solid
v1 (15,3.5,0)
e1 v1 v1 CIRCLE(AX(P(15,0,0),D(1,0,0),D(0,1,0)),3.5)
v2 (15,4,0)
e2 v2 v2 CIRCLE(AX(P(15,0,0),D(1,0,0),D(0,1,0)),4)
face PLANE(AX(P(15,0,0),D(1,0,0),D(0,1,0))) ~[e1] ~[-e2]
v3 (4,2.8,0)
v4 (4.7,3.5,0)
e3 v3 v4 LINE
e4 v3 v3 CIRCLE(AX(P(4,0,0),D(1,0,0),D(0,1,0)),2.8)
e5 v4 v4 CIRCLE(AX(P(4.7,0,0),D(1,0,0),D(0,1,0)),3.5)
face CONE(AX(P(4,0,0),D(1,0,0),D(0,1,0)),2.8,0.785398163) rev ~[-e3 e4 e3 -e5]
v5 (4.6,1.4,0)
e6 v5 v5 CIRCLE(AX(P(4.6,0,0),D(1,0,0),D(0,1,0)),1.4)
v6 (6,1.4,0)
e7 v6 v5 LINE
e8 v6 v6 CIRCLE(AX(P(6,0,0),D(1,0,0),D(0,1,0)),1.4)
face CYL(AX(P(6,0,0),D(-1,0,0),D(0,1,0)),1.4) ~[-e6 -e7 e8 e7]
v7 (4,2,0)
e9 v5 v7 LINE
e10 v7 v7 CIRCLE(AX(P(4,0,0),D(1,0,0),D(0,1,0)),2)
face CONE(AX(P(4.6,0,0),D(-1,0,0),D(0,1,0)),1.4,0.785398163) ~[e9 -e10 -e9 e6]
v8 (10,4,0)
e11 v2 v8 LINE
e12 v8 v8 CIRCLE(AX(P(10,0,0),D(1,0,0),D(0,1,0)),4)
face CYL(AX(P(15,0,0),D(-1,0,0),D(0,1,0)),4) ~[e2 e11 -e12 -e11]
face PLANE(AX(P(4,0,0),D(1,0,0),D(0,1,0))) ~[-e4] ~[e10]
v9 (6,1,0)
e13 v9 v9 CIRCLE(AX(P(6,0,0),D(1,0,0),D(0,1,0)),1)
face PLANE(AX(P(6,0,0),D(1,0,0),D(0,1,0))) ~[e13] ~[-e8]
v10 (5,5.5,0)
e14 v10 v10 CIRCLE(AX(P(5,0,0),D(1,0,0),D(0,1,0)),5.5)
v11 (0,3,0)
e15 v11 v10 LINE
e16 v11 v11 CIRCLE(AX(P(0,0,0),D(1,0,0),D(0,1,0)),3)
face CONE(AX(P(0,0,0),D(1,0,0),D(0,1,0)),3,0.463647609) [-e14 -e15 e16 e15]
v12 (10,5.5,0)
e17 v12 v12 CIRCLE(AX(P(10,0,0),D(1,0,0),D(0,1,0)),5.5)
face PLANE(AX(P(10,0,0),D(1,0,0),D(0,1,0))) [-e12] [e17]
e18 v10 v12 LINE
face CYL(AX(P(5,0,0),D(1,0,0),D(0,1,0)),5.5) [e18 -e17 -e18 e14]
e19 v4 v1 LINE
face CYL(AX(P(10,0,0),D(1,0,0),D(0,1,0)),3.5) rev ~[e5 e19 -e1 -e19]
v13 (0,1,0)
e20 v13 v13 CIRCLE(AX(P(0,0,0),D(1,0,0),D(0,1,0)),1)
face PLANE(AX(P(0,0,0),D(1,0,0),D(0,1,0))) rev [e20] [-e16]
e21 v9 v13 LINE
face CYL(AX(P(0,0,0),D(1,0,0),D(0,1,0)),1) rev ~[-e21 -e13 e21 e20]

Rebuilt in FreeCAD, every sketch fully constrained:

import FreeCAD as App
import Part
import Sketcher
Q = App.Units.Quantity


def edges_at(feature, points):
    """Names of the edges that pass closest to the given points."""
    edges = feature.Shape.Edges
    near = lambda p: min(range(len(edges)), key=lambda i: edges[i].distToShape(Part.Vertex(*p))[0])
    return sorted({f"Edge{near(p) + 1}" for p in points})

doc = App.newDocument("Part")
body = doc.addObject("PartDesign::Body", "Body")

# Sketch on XY plane
sketch1 = doc.addObject("Sketcher::SketchObject", "Sketch")
body.addObject(sketch1)
sketch1.AttachmentSupport = (doc.XY_Plane, [""])
sketch1.MapMode = "FlatFace"
sketch1.addGeometry([
    Part.LineSegment(App.Vector(0, 3, 0), App.Vector(0, 1, 0)),  # 0
    Part.LineSegment(App.Vector(0, 1, 0), App.Vector(6, 1, 0)),  # 1
    Part.LineSegment(App.Vector(6, 1, 0), App.Vector(6, 1.4, 0)),  # 2
    Part.LineSegment(App.Vector(6, 1.4, 0), App.Vector(4, 1.4, 0)),  # 3
    Part.LineSegment(App.Vector(4, 1.4, 0), App.Vector(4, 2.8, 0)),  # 4
    Part.LineSegment(App.Vector(4, 2.8, 0), App.Vector(4.7, 3.5, 0)),  # 5
    Part.LineSegment(App.Vector(4.7, 3.5, 0), App.Vector(15, 3.5, 0)),  # 6
    Part.LineSegment(App.Vector(15, 3.5, 0), App.Vector(15, 4, 0)),  # 7
    Part.LineSegment(App.Vector(15, 4, 0), App.Vector(10, 4, 0)),  # 8
    Part.LineSegment(App.Vector(10, 4, 0), App.Vector(10, 5.5, 0)),  # 9
    Part.LineSegment(App.Vector(10, 5.5, 0), App.Vector(5, 5.5, 0)),  # 10
    Part.LineSegment(App.Vector(5, 5.5, 0), App.Vector(0, 3, 0)),  # 11
], False)
sketch1.addConstraint([
    Sketcher.Constraint("Coincident", 0, 2, 1, 1),
    Sketcher.Constraint("Coincident", 1, 2, 2, 1),
    Sketcher.Constraint("Coincident", 2, 2, 3, 1),
    Sketcher.Constraint("Coincident", 3, 2, 4, 1),
    Sketcher.Constraint("Coincident", 4, 2, 5, 1),
    Sketcher.Constraint("Coincident", 5, 2, 6, 1),
    Sketcher.Constraint("Coincident", 6, 2, 7, 1),
    Sketcher.Constraint("Coincident", 7, 2, 8, 1),
    Sketcher.Constraint("Coincident", 8, 2, 9, 1),
    Sketcher.Constraint("Coincident", 9, 2, 10, 1),
    Sketcher.Constraint("Coincident", 10, 2, 11, 1),
    Sketcher.Constraint("Coincident", 11, 2, 0, 1),
    Sketcher.Constraint("Vertical", 0),
    Sketcher.Constraint("Horizontal", 1),
    Sketcher.Constraint("Vertical", 2),
    Sketcher.Constraint("Horizontal", 3),
    Sketcher.Constraint("Vertical", 4),
    Sketcher.Constraint("Horizontal", 6),
    Sketcher.Constraint("Vertical", 7),
    Sketcher.Constraint("Horizontal", 8),
    Sketcher.Constraint("Vertical", 9),
    Sketcher.Constraint("Horizontal", 10),
    Sketcher.Constraint("PointOnObject", 0, 2, -2),
    Sketcher.Constraint("Equal", 8, 10),
    Sketcher.Constraint("Equal", 3, 0),
    Sketcher.Constraint("DistanceX", 3, 2, 3, 1, 2.0),
    Sketcher.Constraint("DistanceX", 8, 2, 8, 1, 5.0),
    Sketcher.Constraint("DistanceY", 2, 1, 2, 2, 0.4),
    Sketcher.Constraint("DistanceY", 7, 1, 7, 2, 0.5),
    Sketcher.Constraint("DistanceY", -1, 1, 0, 2, 1.0),
    Sketcher.Constraint("DistanceX", -1, 1, 3, 2, 4.0),
    Sketcher.Constraint("DistanceY", -1, 1, 7, 2, 4.0),
    Sketcher.Constraint("DistanceX", -1, 1, 8, 2, 10.0),
    Sketcher.Constraint("DistanceY", 6, 2, 9, 2, 2.0),
    Sketcher.Constraint("DistanceY", 1, 2, 4, 2, 1.8),
    Sketcher.Constraint("Angle", 5, Q("45 deg")),
])
revolution = doc.addObject("PartDesign::Revolution", "Revolution")
body.addObject(revolution)
revolution.Profile = sketch1
revolution.ReferenceAxis = (sketch1, ["H_Axis"])
revolution.Angle = 360
doc.recompute()

chamfer = doc.addObject("PartDesign::Chamfer", "Chamfer")
body.addObject(chamfer)
chamfer.Base = (revolution, edges_at(revolution, [(4, -1.4, 0)]))
chamfer.Size = 0.6

doc.recompute()
